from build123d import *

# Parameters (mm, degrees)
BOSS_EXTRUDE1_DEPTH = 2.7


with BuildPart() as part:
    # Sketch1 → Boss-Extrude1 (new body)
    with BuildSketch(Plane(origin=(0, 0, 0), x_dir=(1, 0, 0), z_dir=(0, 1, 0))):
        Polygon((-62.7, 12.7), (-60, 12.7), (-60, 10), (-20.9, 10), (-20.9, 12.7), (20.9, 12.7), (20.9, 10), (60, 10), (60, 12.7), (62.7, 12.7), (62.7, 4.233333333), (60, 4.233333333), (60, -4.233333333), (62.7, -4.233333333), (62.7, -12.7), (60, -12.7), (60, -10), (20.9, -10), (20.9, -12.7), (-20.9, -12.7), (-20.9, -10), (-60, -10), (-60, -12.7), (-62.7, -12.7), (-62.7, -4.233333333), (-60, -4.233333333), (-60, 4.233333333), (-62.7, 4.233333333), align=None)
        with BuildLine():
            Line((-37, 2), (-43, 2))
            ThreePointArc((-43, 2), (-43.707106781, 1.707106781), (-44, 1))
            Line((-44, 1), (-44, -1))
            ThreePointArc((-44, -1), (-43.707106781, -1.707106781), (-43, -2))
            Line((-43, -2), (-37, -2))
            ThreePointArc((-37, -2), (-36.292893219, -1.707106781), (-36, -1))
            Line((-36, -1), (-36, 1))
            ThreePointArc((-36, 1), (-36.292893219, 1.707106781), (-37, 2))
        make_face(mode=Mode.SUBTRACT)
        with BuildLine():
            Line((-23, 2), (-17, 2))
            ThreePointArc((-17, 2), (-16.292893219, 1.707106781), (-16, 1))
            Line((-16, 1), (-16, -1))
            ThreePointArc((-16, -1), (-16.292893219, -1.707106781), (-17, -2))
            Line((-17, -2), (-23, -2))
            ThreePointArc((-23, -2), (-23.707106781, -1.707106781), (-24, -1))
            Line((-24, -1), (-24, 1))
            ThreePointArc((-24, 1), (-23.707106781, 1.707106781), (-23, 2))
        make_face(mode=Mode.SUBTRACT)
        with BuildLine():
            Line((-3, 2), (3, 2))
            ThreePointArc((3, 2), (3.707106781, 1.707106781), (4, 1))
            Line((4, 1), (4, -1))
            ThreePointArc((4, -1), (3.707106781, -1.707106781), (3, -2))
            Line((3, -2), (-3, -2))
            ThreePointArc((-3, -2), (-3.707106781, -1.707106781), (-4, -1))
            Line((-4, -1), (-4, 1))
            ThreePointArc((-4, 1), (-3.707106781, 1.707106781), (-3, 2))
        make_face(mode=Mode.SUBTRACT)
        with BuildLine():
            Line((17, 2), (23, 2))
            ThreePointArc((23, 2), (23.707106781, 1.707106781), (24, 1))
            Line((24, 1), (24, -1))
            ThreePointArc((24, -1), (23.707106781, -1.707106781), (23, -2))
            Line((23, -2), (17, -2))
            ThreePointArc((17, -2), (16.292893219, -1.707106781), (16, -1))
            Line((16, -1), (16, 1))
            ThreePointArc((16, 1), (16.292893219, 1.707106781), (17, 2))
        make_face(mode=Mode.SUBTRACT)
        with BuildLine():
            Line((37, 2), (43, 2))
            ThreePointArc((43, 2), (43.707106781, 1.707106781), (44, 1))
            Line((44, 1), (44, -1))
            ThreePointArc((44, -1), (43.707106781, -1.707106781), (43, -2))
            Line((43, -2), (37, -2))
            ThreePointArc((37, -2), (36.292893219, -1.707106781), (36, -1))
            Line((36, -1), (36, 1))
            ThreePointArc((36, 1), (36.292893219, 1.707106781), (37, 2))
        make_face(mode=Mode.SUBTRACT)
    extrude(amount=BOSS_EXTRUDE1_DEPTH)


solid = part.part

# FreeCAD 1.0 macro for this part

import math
import FreeCAD as App
import Part
import Sketcher
from FreeCAD import Vector
Q = App.Units.Quantity


def add_polygon(sketch, points):
    """Adds a closed chain of lines whose ends are joined by coincident constraints."""
    first, n = sketch.GeometryCount, len(points)
    for a, b in zip(points, points[1:] + points[:1]):
        sketch.addGeometry(Part.LineSegment(App.Vector(*a, 0), App.Vector(*b, 0)), False)
    for i in range(n):
        sketch.addConstraint(Sketcher.Constraint("Coincident", first + i, 2, first + (i + 1) % n, 1))

doc = App.newDocument("Part")
body = doc.addObject("PartDesign::Body", "Body")

sketch1 = body.newObject("Sketcher::SketchObject", "Sketch")
sketch1.AttachmentSupport = (doc.getObject("XZ_Plane"), [""])
sketch1.MapMode = "FlatFace"
add_polygon(sketch1, [(-60, -12.7), (-62.7, -12.7), (-62.7, -4.233333), (-60, -4.233333), (-60, 4.233333), (-62.7, 4.233333), (-62.7, 12.7), (-60, 12.7), (-60, 10), (-20.9, 10), (-20.9, 12.7), (20.9, 12.7), (20.9, 10), (60, 10), (60, 12.7), (62.7, 12.7), (62.7, 4.233333), (60, 4.233333), (60, -4.233333), (62.7, -4.233333), (62.7, -12.7), (60, -12.7), (60, -10), (20.9, -10), (20.9, -12.7), (-20.9, -12.7), (-20.9, -10), (-60, -10)])
sketch1.addGeometry(Part.LineSegment(Vector(37, -2, 0), Vector(43, -2, 0)), False)
sketch1.addGeometry(Part.ArcOfCircle(Part.Circle(Vector(43, -1, 0), Vector(0, 0, 1), 1), math.radians(-90), math.radians(0)), False)
sketch1.addGeometry(Part.LineSegment(Vector(44, -1, 0), Vector(44, 1, 0)), False)
sketch1.addGeometry(Part.ArcOfCircle(Part.Circle(Vector(43, 1, 0), Vector(0, 0, 1), 1), math.radians(0), math.radians(90)), False)
sketch1.addGeometry(Part.LineSegment(Vector(43, 2, 0), Vector(37, 2, 0)), False)
sketch1.addGeometry(Part.ArcOfCircle(Part.Circle(Vector(37, 1, 0), Vector(0, 0, 1), 1), math.radians(90), math.radians(180)), False)
sketch1.addGeometry(Part.LineSegment(Vector(36, 1, 0), Vector(36, -1, 0)), False)
sketch1.addGeometry(Part.ArcOfCircle(Part.Circle(Vector(37, -1, 0), Vector(0, 0, 1), 1), math.radians(-180), math.radians(-90)), False)
sketch1.addGeometry(Part.LineSegment(Vector(17, -2, 0), Vector(23, -2, 0)), False)
sketch1.addGeometry(Part.ArcOfCircle(Part.Circle(Vector(23, -1, 0), Vector(0, 0, 1), 1), math.radians(-90), math.radians(0)), False)
sketch1.addGeometry(Part.LineSegment(Vector(24, -1, 0), Vector(24, 1, 0)), False)
sketch1.addGeometry(Part.ArcOfCircle(Part.Circle(Vector(23, 1, 0), Vector(0, 0, 1), 1), math.radians(0), math.radians(90)), False)
sketch1.addGeometry(Part.LineSegment(Vector(23, 2, 0), Vector(17, 2, 0)), False)
sketch1.addGeometry(Part.ArcOfCircle(Part.Circle(Vector(17, 1, 0), Vector(0, 0, 1), 1), math.radians(90), math.radians(180)), False)
sketch1.addGeometry(Part.LineSegment(Vector(16, 1, 0), Vector(16, -1, 0)), False)
sketch1.addGeometry(Part.ArcOfCircle(Part.Circle(Vector(17, -1, 0), Vector(0, 0, 1), 1), math.radians(-180), math.radians(-90)), False)
sketch1.addGeometry(Part.LineSegment(Vector(-3, -2, 0), Vector(3, -2, 0)), False)
sketch1.addGeometry(Part.ArcOfCircle(Part.Circle(Vector(3, -1, 0), Vector(0, 0, 1), 1), math.radians(-90), math.radians(0)), False)
sketch1.addGeometry(Part.LineSegment(Vector(4, -1, 0), Vector(4, 1, 0)), False)
sketch1.addGeometry(Part.ArcOfCircle(Part.Circle(Vector(3, 1, 0), Vector(0, 0, 1), 1), math.radians(0), math.radians(90)), False)
sketch1.addGeometry(Part.LineSegment(Vector(3, 2, 0), Vector(-3, 2, 0)), False)
sketch1.addGeometry(Part.ArcOfCircle(Part.Circle(Vector(-3, 1, 0), Vector(0, 0, 1), 1), math.radians(90), math.radians(180)), False)
sketch1.addGeometry(Part.LineSegment(Vector(-4, 1, 0), Vector(-4, -1, 0)), False)
sketch1.addGeometry(Part.ArcOfCircle(Part.Circle(Vector(-3, -1, 0), Vector(0, 0, 1), 1), math.radians(-180), math.radians(-90)), False)
sketch1.addGeometry(Part.LineSegment(Vector(-23, -2, 0), Vector(-17, -2, 0)), False)
sketch1.addGeometry(Part.ArcOfCircle(Part.Circle(Vector(-17, -1, 0), Vector(0, 0, 1), 1), math.radians(-90), math.radians(0)), False)
sketch1.addGeometry(Part.LineSegment(Vector(-16, -1, 0), Vector(-16, 1, 0)), False)
sketch1.addGeometry(Part.ArcOfCircle(Part.Circle(Vector(-17, 1, 0), Vector(0, 0, 1), 1), math.radians(0), math.radians(90)), False)
sketch1.addGeometry(Part.LineSegment(Vector(-17, 2, 0), Vector(-23, 2, 0)), False)
sketch1.addGeometry(Part.ArcOfCircle(Part.Circle(Vector(-23, 1, 0), Vector(0, 0, 1), 1), math.radians(90), math.radians(180)), False)
sketch1.addGeometry(Part.LineSegment(Vector(-24, 1, 0), Vector(-24, -1, 0)), False)
sketch1.addGeometry(Part.ArcOfCircle(Part.Circle(Vector(-23, -1, 0), Vector(0, 0, 1), 1), math.radians(-180), math.radians(-90)), False)
sketch1.addGeometry(Part.ArcOfCircle(Part.Circle(Vector(-37, -1, 0), Vector(0, 0, 1), 1), math.radians(-90), math.radians(0)), False)
sketch1.addGeometry(Part.LineSegment(Vector(-36, -1, 0), Vector(-36, 1, 0)), False)
sketch1.addGeometry(Part.ArcOfCircle(Part.Circle(Vector(-37, 1, 0), Vector(0, 0, 1), 1), math.radians(0), math.radians(90)), False)
sketch1.addGeometry(Part.LineSegment(Vector(-37, 2, 0), Vector(-43, 2, 0)), False)
sketch1.addGeometry(Part.ArcOfCircle(Part.Circle(Vector(-43, 1, 0), Vector(0, 0, 1), 1), math.radians(90), math.radians(180)), False)
sketch1.addGeometry(Part.LineSegment(Vector(-44, 1, 0), Vector(-44, -1, 0)), False)
sketch1.addGeometry(Part.ArcOfCircle(Part.Circle(Vector(-43, -1, 0), Vector(0, 0, 1), 1), math.radians(-180), math.radians(-90)), False)
sketch1.addGeometry(Part.LineSegment(Vector(-43, -2, 0), Vector(-37, -2, 0)), False)
sketch1.addConstraint([
    Sketcher.Constraint("Tangent", 28, 2, 29, 1),
    Sketcher.Constraint("Tangent", 29, 2, 30, 1),
    Sketcher.Constraint("Tangent", 30, 2, 31, 1),
    Sketcher.Constraint("Tangent", 31, 2, 32, 1),
    Sketcher.Constraint("Tangent", 32, 2, 33, 1),
    Sketcher.Constraint("Tangent", 33, 2, 34, 1),
    Sketcher.Constraint("Tangent", 34, 2, 35, 1),
    Sketcher.Constraint("Tangent", 35, 2, 28, 1),
    Sketcher.Constraint("Tangent", 36, 2, 37, 1),
    Sketcher.Constraint("Tangent", 37, 2, 38, 1),
    Sketcher.Constraint("Tangent", 38, 2, 39, 1),
    Sketcher.Constraint("Tangent", 39, 2, 40, 1),
    Sketcher.Constraint("Tangent", 40, 2, 41, 1),
    Sketcher.Constraint("Tangent", 41, 2, 42, 1),
    Sketcher.Constraint("Tangent", 42, 2, 43, 1),
    Sketcher.Constraint("Tangent", 43, 2, 36, 1),
    Sketcher.Constraint("Tangent", 44, 2, 45, 1),
    Sketcher.Constraint("Tangent", 45, 2, 46, 1),
    Sketcher.Constraint("Tangent", 46, 2, 47, 1),
    Sketcher.Constraint("Tangent", 47, 2, 48, 1),
    Sketcher.Constraint("Tangent", 48, 2, 49, 1),
    Sketcher.Constraint("Tangent", 49, 2, 50, 1),
    Sketcher.Constraint("Tangent", 50, 2, 51, 1),
    Sketcher.Constraint("Tangent", 51, 2, 44, 1),
    Sketcher.Constraint("Tangent", 52, 2, 53, 1),
    Sketcher.Constraint("Tangent", 53, 2, 54, 1),
    Sketcher.Constraint("Tangent", 54, 2, 55, 1),
    Sketcher.Constraint("Tangent", 55, 2, 56, 1),
    Sketcher.Constraint("Tangent", 56, 2, 57, 1),
    Sketcher.Constraint("Tangent", 57, 2, 58, 1),
    Sketcher.Constraint("Tangent", 58, 2, 59, 1),
    Sketcher.Constraint("Tangent", 59, 2, 52, 1),
    Sketcher.Constraint("Tangent", 60, 2, 61, 1),
    Sketcher.Constraint("Tangent", 61, 2, 62, 1),
    Sketcher.Constraint("Tangent", 62, 2, 63, 1),
    Sketcher.Constraint("Tangent", 63, 2, 64, 1),
    Sketcher.Constraint("Tangent", 64, 2, 65, 1),
    Sketcher.Constraint("Tangent", 65, 2, 66, 1),
    Sketcher.Constraint("Tangent", 66, 2, 67, 1),
    Sketcher.Constraint("Tangent", 67, 2, 60, 1),
    Sketcher.Constraint("Horizontal", 0),
    Sketcher.Constraint("Vertical", 1),
    Sketcher.Constraint("Horizontal", 2),
    Sketcher.Constraint("Vertical", 3),
    Sketcher.Constraint("Horizontal", 4),
    Sketcher.Constraint("Vertical", 5),
    Sketcher.Constraint("Horizontal", 6),
    Sketcher.Constraint("Vertical", 7),
    Sketcher.Constraint("Horizontal", 8),
    Sketcher.Constraint("Vertical", 9),
    Sketcher.Constraint("Horizontal", 10),
    Sketcher.Constraint("Vertical", 11),
    Sketcher.Constraint("Horizontal", 12),
    Sketcher.Constraint("Vertical", 13),
    Sketcher.Constraint("Horizontal", 14),
    Sketcher.Constraint("Vertical", 15),
    Sketcher.Constraint("Horizontal", 16),
    Sketcher.Constraint("Vertical", 17),
    Sketcher.Constraint("Horizontal", 18),
    Sketcher.Constraint("Vertical", 19),
    Sketcher.Constraint("Horizontal", 20),
    Sketcher.Constraint("Vertical", 21),
    Sketcher.Constraint("Horizontal", 22),
    Sketcher.Constraint("Vertical", 23),
    Sketcher.Constraint("Horizontal", 24),
    Sketcher.Constraint("Vertical", 25),
    Sketcher.Constraint("Horizontal", 26),
    Sketcher.Constraint("Vertical", 27),
    Sketcher.Constraint("Horizontal", 28),
    Sketcher.Constraint("Vertical", 30),
    Sketcher.Constraint("Horizontal", 32),
    Sketcher.Constraint("Vertical", 34),
    Sketcher.Constraint("Horizontal", 36),
    Sketcher.Constraint("Vertical", 38),
    Sketcher.Constraint("Horizontal", 40),
    Sketcher.Constraint("Vertical", 42),
    Sketcher.Constraint("Horizontal", 44),
    Sketcher.Constraint("Vertical", 46),
    Sketcher.Constraint("Horizontal", 48),
    Sketcher.Constraint("Vertical", 50),
    Sketcher.Constraint("Horizontal", 52),
    Sketcher.Constraint("Vertical", 54),
    Sketcher.Constraint("Horizontal", 56),
    Sketcher.Constraint("Vertical", 58),
    Sketcher.Constraint("Vertical", 61),
    Sketcher.Constraint("Horizontal", 63),
    Sketcher.Constraint("Vertical", 65),
    Sketcher.Constraint("Horizontal", 67),
    Sketcher.Constraint("Equal", 29, 31),
    Sketcher.Constraint("Equal", 31, 33),
    Sketcher.Constraint("Equal", 33, 35),
    Sketcher.Constraint("Equal", 35, 37),
    Sketcher.Constraint("Equal", 37, 39),
    Sketcher.Constraint("Equal", 39, 41),
    Sketcher.Constraint("Equal", 41, 43),
    Sketcher.Constraint("Equal", 43, 45),
    Sketcher.Constraint("Equal", 45, 47),
    Sketcher.Constraint("Equal", 47, 49),
    Sketcher.Constraint("Equal", 49, 51),
    Sketcher.Constraint("Equal", 51, 53),
    Sketcher.Constraint("Equal", 53, 55),
    Sketcher.Constraint("Equal", 55, 57),
    Sketcher.Constraint("Equal", 57, 59),
    Sketcher.Constraint("Equal", 59, 60),
    Sketcher.Constraint("Equal", 60, 62),
    Sketcher.Constraint("Equal", 62, 64),
    Sketcher.Constraint("Equal", 64, 66),
    Sketcher.Constraint("Symmetric", 45, 3, 49, 3, -1, 1),
    Sketcher.Constraint("Symmetric", 41, 3, 53, 3, -1, 1),
    Sketcher.Constraint("Symmetric", 37, 3, 57, 3, -1, 1),
    Sketcher.Constraint("Symmetric", 33, 3, 60, 3, -1, 1),
    Sketcher.Constraint("Symmetric", 29, 3, 64, 3, -1, 1),
    Sketcher.Constraint("Symmetric", 0, 2, 14, 2, -1, 1),
    Sketcher.Constraint("Symmetric", 2, 2, 16, 2, -1, 1),
    Sketcher.Constraint("Symmetric", 4, 2, 18, 2, -1, 1),
    Sketcher.Constraint("Symmetric", 6, 2, 20, 2, -1, 1),
    Sketcher.Constraint("Symmetric", 8, 2, 22, 2, -1, 1),
    Sketcher.Constraint("Symmetric", 10, 2, 24, 2, -1, 1),
    Sketcher.Constraint("Symmetric", 12, 2, 26, 2, -1, 1),
    Sketcher.Constraint("Symmetric", 8, 2, 11, 2, -2),
    Sketcher.Constraint("Symmetric", 6, 2, 13, 2, -2),
    Sketcher.Constraint("Symmetric", 4, 2, 15, 2, -2),
    Sketcher.Constraint("Horizontal", 35, 3, 37, 3),
    Sketcher.Constraint("Horizontal", 33, 3, 39, 3),
    Sketcher.Constraint("Horizontal", 43, 3, 45, 3),
    Sketcher.Constraint("Horizontal", 41, 3, 47, 3),
    Sketcher.Constraint("Horizontal", 6, 2, 9, 2),
    Sketcher.Constraint("Vertical", 3, 2, 6, 2),
    Sketcher.Constraint("Equal", 32, 36),
    Sketcher.Constraint("Equal", 40, 44),
    Sketcher.Constraint("Equal", 1, 3),
    Sketcher.Constraint("Equal", 20, 7),
    Sketcher.Constraint("Radius", 29, Q("1 mm")),
    Sketcher.Constraint("DistanceX", 28, 1, 28, 2, Q("6 mm")),
    Sketcher.Constraint("DistanceY", 30, 1, 30, 2, Q("2 mm")),
    Sketcher.Constraint("DistanceX", 0, 2, 0, 1, Q("2.7 mm")),
    Sketcher.Constraint("DistanceX", 8, 1, 8, 2, Q("39.1 mm")),
    Sketcher.Constraint("DistanceX", 10, 1, 10, 2, Q("41.8 mm")),
    Sketcher.Constraint("DistanceX", -1, 1, 29, 3, Q("43 mm")),
    Sketcher.Constraint("DistanceX", -1, 1, 37, 3, Q("23 mm")),
    Sketcher.Constraint("DistanceY", -1, 1, 7, 2, Q("10 mm")),
])
pad1 = body.newObject("PartDesign::Pad", "Pad")
pad1.Profile = sketch1
pad1.Length = 2.7
pad1.Reversed = True

doc.recompute()
